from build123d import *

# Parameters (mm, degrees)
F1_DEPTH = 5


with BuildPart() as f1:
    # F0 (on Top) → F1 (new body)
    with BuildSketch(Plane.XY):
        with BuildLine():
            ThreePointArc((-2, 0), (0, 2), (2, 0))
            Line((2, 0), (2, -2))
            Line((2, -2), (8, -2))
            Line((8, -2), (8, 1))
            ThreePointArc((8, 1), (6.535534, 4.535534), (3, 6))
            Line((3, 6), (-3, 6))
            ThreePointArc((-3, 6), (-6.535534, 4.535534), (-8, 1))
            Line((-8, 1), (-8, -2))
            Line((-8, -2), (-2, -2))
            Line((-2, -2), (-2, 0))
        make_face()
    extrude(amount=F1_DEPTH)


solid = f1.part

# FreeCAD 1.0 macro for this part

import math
import FreeCAD as App
import Part
import Sketcher

V = App.Vector

doc = App.newDocument("Part")
body = doc.addObject("PartDesign::Body", "Body")

sketch1 = body.newObject("Sketcher::SketchObject", "Sketch")
sketch1.AttachmentSupport = (doc.getObject("XY_Plane"), [""])
sketch1.MapMode = "FlatFace"
sketch1.addGeometry(Part.ArcOfCircle(Part.Circle(V(0, 0, 0), V(0, 0, 1), 2), math.radians(0), math.radians(180)), False)
sketch1.addGeometry(Part.LineSegment(V(2, 0, 0), V(2, -2, 0)), False)
sketch1.addGeometry(Part.LineSegment(V(2, -2, 0), V(8, -2, 0)), False)
sketch1.addGeometry(Part.LineSegment(V(8, -2, 0), V(8, 1, 0)), False)
sketch1.addGeometry(Part.ArcOfCircle(Part.Circle(V(3, 1, 0), V(0, 0, 1), 5), math.radians(0), math.radians(90)), False)
sketch1.addGeometry(Part.LineSegment(V(3, 6, 0), V(-3, 6, 0)), False)
sketch1.addGeometry(Part.ArcOfCircle(Part.Circle(V(-3, 1, 0), V(0, 0, 1), 5), math.radians(90), math.radians(180)), False)
sketch1.addGeometry(Part.LineSegment(V(-8, 1, 0), V(-8, -2, 0)), False)
sketch1.addGeometry(Part.LineSegment(V(-8, -2, 0), V(-2, -2, 0)), False)
sketch1.addGeometry(Part.LineSegment(V(-2, -2, 0), V(-2, 0, 0)), False)
sketch1.addConstraint(Sketcher.Constraint("Tangent", 0, 1, 1, 1))
sketch1.addConstraint(Sketcher.Constraint("Coincident", 1, 2, 2, 1))
sketch1.addConstraint(Sketcher.Constraint("Coincident", 2, 2, 3, 1))
sketch1.addConstraint(Sketcher.Constraint("Tangent", 3, 2, 4, 1))
sketch1.addConstraint(Sketcher.Constraint("Tangent", 4, 2, 5, 1))
sketch1.addConstraint(Sketcher.Constraint("Tangent", 5, 2, 6, 1))
sketch1.addConstraint(Sketcher.Constraint("Tangent", 6, 2, 7, 1))
sketch1.addConstraint(Sketcher.Constraint("Coincident", 7, 2, 8, 1))
sketch1.addConstraint(Sketcher.Constraint("Coincident", 8, 2, 9, 1))
sketch1.addConstraint(Sketcher.Constraint("Tangent", 9, 2, 0, 2))
sketch1.addConstraint(Sketcher.Constraint("Vertical", 1))
sketch1.addConstraint(Sketcher.Constraint("Horizontal", 2))
sketch1.addConstraint(Sketcher.Constraint("Vertical", 3))
sketch1.addConstraint(Sketcher.Constraint("Horizontal", 5))
sketch1.addConstraint(Sketcher.Constraint("Vertical", 7))
sketch1.addConstraint(Sketcher.Constraint("Horizontal", 8))
sketch1.addConstraint(Sketcher.Constraint("Vertical", 9))
sketch1.addConstraint(Sketcher.Constraint("Coincident", 0, 3, -1, 1))
sketch1.addConstraint(Sketcher.Constraint("Equal", 4, 6))
sketch1.addConstraint(Sketcher.Constraint("Symmetric", 2, 2, 7, 2, -2))
sketch1.addConstraint(Sketcher.Constraint("Equal", 2, 5))
sketch1.addConstraint(Sketcher.Constraint("Radius", 0, 2.0))
sketch1.addConstraint(Sketcher.Constraint("Radius", 4, 5.0))
sketch1.addConstraint(Sketcher.Constraint("DistanceY", 1, 2, 1, 1, 2.0))
sketch1.addConstraint(Sketcher.Constraint("DistanceY", 3, 1, 3, 2, 3.0))
pad1 = body.newObject("PartDesign::Pad", "Pad")
pad1.Profile = sketch1
pad1.Length = 5

doc.recompute()
